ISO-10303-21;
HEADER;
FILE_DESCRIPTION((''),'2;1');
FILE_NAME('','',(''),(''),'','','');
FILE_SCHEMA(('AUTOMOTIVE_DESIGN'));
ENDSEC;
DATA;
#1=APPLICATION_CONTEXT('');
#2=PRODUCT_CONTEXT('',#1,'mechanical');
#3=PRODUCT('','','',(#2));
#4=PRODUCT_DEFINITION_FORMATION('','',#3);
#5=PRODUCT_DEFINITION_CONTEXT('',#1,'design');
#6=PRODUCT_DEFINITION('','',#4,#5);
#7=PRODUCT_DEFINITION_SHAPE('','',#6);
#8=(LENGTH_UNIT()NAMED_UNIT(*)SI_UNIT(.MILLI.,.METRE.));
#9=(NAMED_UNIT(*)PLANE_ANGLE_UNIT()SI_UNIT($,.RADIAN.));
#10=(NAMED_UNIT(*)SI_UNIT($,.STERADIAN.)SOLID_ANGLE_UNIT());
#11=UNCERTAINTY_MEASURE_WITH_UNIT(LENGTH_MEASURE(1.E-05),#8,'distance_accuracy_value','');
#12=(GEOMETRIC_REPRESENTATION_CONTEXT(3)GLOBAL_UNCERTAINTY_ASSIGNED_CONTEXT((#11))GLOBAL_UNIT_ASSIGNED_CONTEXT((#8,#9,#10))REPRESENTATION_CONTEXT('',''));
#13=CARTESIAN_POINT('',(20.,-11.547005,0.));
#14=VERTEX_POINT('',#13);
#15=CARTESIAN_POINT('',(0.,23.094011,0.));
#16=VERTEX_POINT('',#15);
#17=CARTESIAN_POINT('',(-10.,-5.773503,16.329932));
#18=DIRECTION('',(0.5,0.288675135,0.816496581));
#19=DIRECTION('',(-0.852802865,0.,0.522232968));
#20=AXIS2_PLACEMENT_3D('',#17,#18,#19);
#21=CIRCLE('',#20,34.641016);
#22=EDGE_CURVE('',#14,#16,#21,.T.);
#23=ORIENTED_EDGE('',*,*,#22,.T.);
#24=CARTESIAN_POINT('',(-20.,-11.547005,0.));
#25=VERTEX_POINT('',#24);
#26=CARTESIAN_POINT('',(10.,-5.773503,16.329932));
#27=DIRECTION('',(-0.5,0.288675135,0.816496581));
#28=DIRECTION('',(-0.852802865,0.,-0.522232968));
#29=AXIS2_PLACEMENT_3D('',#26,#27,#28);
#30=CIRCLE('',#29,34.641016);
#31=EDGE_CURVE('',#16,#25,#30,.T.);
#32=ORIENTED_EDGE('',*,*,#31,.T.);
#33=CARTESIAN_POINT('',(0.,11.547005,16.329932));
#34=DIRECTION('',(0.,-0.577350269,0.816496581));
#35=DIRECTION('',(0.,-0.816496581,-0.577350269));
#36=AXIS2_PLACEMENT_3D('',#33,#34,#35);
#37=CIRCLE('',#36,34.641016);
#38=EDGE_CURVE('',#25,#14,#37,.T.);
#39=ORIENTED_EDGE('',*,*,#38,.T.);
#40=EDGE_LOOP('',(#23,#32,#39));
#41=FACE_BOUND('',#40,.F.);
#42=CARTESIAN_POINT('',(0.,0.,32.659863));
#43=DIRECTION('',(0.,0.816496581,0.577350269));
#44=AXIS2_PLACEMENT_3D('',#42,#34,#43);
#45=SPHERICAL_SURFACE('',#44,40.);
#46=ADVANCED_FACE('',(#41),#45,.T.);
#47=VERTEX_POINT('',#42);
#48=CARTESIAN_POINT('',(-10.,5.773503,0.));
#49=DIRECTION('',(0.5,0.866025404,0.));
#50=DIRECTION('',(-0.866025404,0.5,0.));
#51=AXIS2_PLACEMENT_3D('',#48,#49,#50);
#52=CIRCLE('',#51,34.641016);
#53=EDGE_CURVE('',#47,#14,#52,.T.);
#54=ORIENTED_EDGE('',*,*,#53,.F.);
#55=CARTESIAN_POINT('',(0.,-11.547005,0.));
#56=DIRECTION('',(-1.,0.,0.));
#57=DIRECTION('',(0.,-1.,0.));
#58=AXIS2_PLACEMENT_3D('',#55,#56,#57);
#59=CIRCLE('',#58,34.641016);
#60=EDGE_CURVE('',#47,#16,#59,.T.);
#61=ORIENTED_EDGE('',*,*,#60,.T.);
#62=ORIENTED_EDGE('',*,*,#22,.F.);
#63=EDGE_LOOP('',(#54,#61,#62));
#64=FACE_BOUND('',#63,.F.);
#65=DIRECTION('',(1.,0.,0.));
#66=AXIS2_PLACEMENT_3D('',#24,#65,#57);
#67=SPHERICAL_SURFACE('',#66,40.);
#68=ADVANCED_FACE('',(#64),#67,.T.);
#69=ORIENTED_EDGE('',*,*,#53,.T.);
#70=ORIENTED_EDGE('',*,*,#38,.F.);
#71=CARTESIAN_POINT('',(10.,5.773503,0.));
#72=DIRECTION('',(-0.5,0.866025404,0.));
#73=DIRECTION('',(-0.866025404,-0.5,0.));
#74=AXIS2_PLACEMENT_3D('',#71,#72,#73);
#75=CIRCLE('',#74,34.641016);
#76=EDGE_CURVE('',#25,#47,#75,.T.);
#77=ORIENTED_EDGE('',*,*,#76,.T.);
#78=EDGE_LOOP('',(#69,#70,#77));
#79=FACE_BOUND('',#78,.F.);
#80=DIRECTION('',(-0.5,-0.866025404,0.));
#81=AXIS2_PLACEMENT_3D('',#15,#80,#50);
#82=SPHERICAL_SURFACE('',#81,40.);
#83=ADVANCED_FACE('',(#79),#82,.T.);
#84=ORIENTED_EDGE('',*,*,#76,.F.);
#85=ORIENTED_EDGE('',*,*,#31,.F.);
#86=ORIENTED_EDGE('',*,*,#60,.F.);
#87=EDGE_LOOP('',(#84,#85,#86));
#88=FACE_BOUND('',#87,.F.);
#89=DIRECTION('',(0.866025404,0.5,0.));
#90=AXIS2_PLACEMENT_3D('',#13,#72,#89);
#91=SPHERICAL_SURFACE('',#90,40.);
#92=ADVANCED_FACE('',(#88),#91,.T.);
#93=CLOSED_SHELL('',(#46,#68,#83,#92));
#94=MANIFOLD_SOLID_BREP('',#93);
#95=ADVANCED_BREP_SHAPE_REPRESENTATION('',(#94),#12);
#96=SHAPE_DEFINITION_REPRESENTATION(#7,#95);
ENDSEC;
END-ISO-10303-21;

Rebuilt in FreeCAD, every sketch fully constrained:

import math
import FreeCAD as App
import Part
import Sketcher
from FreeCAD import Vector
Q = App.Units.Quantity

doc = App.newDocument("Part")
body = doc.addObject("PartDesign::Body", "Body")

# Sketch on XY plane
sketch1 = body.newObject("Sketcher::SketchObject", "Sketch")
sketch1.AttachmentSupport = (doc.getObject("XY_Plane"), [""])
sketch1.MapMode = "FlatFace"
sketch1.addGeometry([
    Part.ArcOfCircle(Part.Circle(Vector(20, -12, 0), Vector(0, 0, 1), 40), math.radians(-60), math.radians(120)),
    Part.LineSegment(Vector(0, 23, 0), Vector(40, -46, 0)),
], False)
sketch1.addGeometry(Part.LineSegment(Vector(0, 23, 0), Vector(40, -46, 0)), True)  # axis
sketch1.addConstraint([
    Sketcher.Constraint("Coincident", 0, 1, 1, 2),
    Sketcher.Constraint("Coincident", 1, 1, 0, 2),
    Sketcher.Constraint("Coincident", 2, 1, 1, 1),
    Sketcher.Constraint("Coincident", 2, 2, 0, 1),
    Sketcher.Constraint("PointOnObject", 1, 1, -2),
    Sketcher.Constraint("Radius", 0, Q("40 mm")),
    Sketcher.Constraint("Angle", 1, Q("-60 deg")),
    Sketcher.Constraint("DistanceX", -1, 1, 0, 3, Q("20 mm")),
    Sketcher.Constraint("DistanceY", 0, 1, -1, 1, Q("46.188022 mm")),
])
revolution = body.newObject("PartDesign::Revolution", "Revolution")
revolution.Profile = sketch1
revolution.ReferenceAxis = (sketch1, ["Axis0"])
revolution.Angle = 360
body2 = doc.addObject("PartDesign::Body", "Body001")

# Sketch on XY plane
sketch2 = body2.newObject("Sketcher::SketchObject", "Sketch001")
sketch2.AttachmentSupport = (doc.getObject("XY_Plane001"), [""])
sketch2.MapMode = "FlatFace"
sketch2.addGeometry([
    Part.ArcOfCircle(Part.Circle(Vector(-20, -12, 0), Vector(0, 0, 1), 40), math.radians(180), math.radians(360)),
    Part.LineSegment(Vector(20, -12, 0), Vector(-60, -12, 0)),
], False)
sketch2.addGeometry(Part.LineSegment(Vector(20, -12, 0), Vector(-60, -12, 0)), True)  # axis
sketch2.addConstraint([
    Sketcher.Constraint("Coincident", 0, 1, 1, 2),
    Sketcher.Constraint("Coincident", 1, 1, 0, 2),
    Sketcher.Constraint("Horizontal", 1),
    Sketcher.Constraint("Horizontal", 2),
    Sketcher.Constraint("Coincident", 2, 1, 1, 1),
    Sketcher.Constraint("Equal", 1, 2),
    Sketcher.Constraint("Radius", 0, Q("40 mm")),
    Sketcher.Constraint("DistanceX", 0, 3, -1, 1, Q("20 mm")),
    Sketcher.Constraint("DistanceY", 0, 3, -1, 1, Q("11.547005 mm")),
    Sketcher.Constraint("DistanceY", 0, 1, -1, 1, Q("11.547005 mm")),
])
revolution2 = body2.newObject("PartDesign::Revolution", "Revolution001")
revolution2.Profile = sketch2
revolution2.ReferenceAxis = (sketch2, ["Axis0"])
revolution2.Angle = 360
body3 = doc.addObject("PartDesign::Body", "Body002")

# Sketch on XY plane
sketch3 = body3.newObject("Sketcher::SketchObject", "Sketch002")
sketch3.AttachmentSupport = (doc.getObject("XY_Plane002"), [""])
sketch3.MapMode = "FlatFace"
sketch3.addGeometry([
    Part.LineSegment(Vector(-20, -12, 0), Vector(20, 58, 0)),
    Part.ArcOfCircle(Part.Circle(Vector(0, 23, 0), Vector(0, 0, 1), 40), math.radians(60), math.radians(240)),
], False)
sketch3.addGeometry(Part.LineSegment(Vector(-20, -12, 0), Vector(20, 58, 0)), True)  # axis
sketch3.addConstraint([
    Sketcher.Constraint("Coincident", 0, 1, 1, 2),
    Sketcher.Constraint("Coincident", 1, 1, 0, 2),
    Sketcher.Constraint("Coincident", 2, 1, 0, 1),
    Sketcher.Constraint("Coincident", 2, 2, 1, 1),
    Sketcher.Constraint("PointOnObject", 1, 3, -2),
    Sketcher.Constraint("Radius", 1, Q("40 mm")),
    Sketcher.Constraint("Angle", 0, Q("60 deg")),
    Sketcher.Constraint("DistanceX", 0, 1, -1, 1, Q("20 mm")),
    Sketcher.Constraint("DistanceY", -1, 1, 1, 3, Q("23.094011 mm")),
])
revolution3 = body3.newObject("PartDesign::Revolution", "Revolution002")
revolution3.Profile = sketch3
revolution3.ReferenceAxis = (sketch3, ["Axis0"])
revolution3.Angle = 360
body4 = doc.addObject("PartDesign::Body", "Body003")

# Sketch on YZ plane
sketch4 = body4.newObject("Sketcher::SketchObject", "Sketch003")
sketch4.AttachmentSupport = (doc.getObject("YZ_Plane003"), [""])
sketch4.MapMode = "FlatFace"
sketch4.addGeometry([
    Part.LineSegment(Vector(-23, 65, 0), Vector(23, 0, 0)),
    Part.ArcOfCircle(Part.Circle(Vector(0, 33, 0), Vector(0, 0, 1), 40), math.radians(-55), math.radians(125)),
], False)
sketch4.addGeometry(Part.LineSegment(Vector(-23, 65, 0), Vector(23, 0, 0)), True)  # axis
sketch4.addConstraint([
    Sketcher.Constraint("Coincident", 0, 1, 1, 2),
    Sketcher.Constraint("Coincident", 1, 1, 0, 2),
    Sketcher.Constraint("Coincident", 2, 1, 0, 1),
    Sketcher.Constraint("Coincident", 2, 2, 1, 1),
    Sketcher.Constraint("PointOnObject", 1, 3, -2),
    Sketcher.Constraint("PointOnObject", 1, 1, -1),
    Sketcher.Constraint("Radius", 1, Q("40 mm")),
    Sketcher.Constraint("DistanceX", 0, 1, -1, 1, Q("23.094011 mm")),
    Sketcher.Constraint("DistanceX", -1, 1, 1, 1, Q("23.094011 mm")),
])
revolution4 = body4.newObject("PartDesign::Revolution", "Revolution003")
revolution4.Profile = sketch4
revolution4.ReferenceAxis = (sketch4, ["Axis0"])
revolution4.Angle = 360
doc.recompute()

boolean = body.newObject("PartDesign::Boolean", "Boolean")
boolean.Type = "Common"
boolean.addObjects([body2])
doc.recompute()

boolean2 = body.newObject("PartDesign::Boolean", "Boolean001")
boolean2.Type = "Common"
boolean2.addObjects([body3])
doc.recompute()

boolean3 = body.newObject("PartDesign::Boolean", "Boolean002")
boolean3.Type = "Common"
boolean3.addObjects([body4])

doc.recompute()
